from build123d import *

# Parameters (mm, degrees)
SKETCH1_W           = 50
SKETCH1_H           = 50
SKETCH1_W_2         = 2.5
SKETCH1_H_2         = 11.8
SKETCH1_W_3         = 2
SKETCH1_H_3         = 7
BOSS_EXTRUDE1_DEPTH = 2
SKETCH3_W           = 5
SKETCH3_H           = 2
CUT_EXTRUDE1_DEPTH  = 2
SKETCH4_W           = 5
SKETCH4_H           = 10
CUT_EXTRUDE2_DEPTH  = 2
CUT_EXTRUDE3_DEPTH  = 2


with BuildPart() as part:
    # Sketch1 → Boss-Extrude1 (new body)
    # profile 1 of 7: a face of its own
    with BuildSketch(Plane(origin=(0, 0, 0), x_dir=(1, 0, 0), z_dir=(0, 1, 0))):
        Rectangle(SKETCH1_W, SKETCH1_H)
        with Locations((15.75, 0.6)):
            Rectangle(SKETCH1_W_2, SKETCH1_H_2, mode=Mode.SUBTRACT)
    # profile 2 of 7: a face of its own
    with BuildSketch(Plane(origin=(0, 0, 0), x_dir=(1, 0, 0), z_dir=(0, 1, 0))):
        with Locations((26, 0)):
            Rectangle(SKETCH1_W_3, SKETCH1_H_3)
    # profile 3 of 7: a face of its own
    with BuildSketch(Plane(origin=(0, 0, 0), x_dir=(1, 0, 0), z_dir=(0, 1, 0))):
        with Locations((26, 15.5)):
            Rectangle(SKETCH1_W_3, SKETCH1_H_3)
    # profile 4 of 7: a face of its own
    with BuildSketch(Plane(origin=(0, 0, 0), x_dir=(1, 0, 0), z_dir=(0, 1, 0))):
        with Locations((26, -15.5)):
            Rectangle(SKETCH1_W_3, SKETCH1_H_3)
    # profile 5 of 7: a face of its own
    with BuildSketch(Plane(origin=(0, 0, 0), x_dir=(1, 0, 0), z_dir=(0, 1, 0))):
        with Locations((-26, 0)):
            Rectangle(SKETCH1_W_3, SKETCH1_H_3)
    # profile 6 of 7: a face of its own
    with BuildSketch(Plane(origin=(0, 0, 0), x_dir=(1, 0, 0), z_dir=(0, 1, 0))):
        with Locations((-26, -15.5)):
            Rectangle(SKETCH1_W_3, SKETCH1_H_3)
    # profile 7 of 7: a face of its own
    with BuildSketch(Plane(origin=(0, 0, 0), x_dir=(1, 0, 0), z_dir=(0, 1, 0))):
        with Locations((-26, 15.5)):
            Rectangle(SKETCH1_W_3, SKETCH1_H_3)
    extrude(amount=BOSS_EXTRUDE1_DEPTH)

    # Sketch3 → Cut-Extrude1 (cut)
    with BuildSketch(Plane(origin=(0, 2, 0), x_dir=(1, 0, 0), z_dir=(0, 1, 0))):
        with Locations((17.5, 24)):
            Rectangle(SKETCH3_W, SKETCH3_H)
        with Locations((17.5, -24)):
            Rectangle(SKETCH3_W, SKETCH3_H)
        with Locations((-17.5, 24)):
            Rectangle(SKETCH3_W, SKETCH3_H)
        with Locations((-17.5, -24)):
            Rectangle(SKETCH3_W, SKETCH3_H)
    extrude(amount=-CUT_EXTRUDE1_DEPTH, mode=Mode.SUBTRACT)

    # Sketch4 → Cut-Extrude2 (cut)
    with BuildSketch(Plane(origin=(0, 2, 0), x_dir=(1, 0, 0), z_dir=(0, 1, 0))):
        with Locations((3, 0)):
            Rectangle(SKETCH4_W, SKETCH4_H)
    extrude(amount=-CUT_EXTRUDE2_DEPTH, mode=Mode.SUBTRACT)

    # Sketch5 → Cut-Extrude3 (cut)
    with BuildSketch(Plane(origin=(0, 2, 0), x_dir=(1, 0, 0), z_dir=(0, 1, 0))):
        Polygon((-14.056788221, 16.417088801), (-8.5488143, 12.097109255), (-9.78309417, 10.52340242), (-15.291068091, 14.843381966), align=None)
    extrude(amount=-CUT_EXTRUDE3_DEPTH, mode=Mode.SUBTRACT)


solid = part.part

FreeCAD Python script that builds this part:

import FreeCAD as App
import Part
import Sketcher
from FreeCAD import Vector


def add_polygon(sketch, points):
    """Adds a closed chain of lines whose ends are joined by coincident constraints."""
    first, n = sketch.GeometryCount, len(points)
    for a, b in zip(points, points[1:] + points[:1]):
        sketch.addGeometry(Part.LineSegment(App.Vector(*a, 0), App.Vector(*b, 0)), False)
    for i in range(n):
        sketch.addConstraint(Sketcher.Constraint("Coincident", first + i, 2, first + (i + 1) % n, 1))

doc = App.newDocument("Part")
body = doc.addObject("PartDesign::Body", "Body")

sketch1 = body.newObject("Sketcher::SketchObject", "Sketch")
sketch1.AttachmentSupport = (doc.getObject("XZ_Plane"), [""])
sketch1.MapMode = "FlatFace"
add_polygon(sketch1, [(-25, 19), (-25, 25), (25, 25), (25, 19), (27, 19), (27, 12), (25, 12), (25, 3.5), (27, 3.5), (27, -3.5), (25, -3.5), (25, -12), (27, -12), (27, -19), (25, -19), (25, -25), (-25, -25), (-25, -19), (-27, -19), (-27, -12), (-25, -12), (-25, -3.5), (-27, -3.5), (-27, 3.5), (-25, 3.5), (-25, 12), (-27, 12), (-27, 19)])
add_polygon(sketch1, [(17, 5.3), (14.5, 5.3), (14.5, -6.5), (17, -6.5)])
sketch1.addConstraint([
    Sketcher.Constraint("Vertical", 0),
    Sketcher.Constraint("Horizontal", 1),
    Sketcher.Constraint("Vertical", 2),
    Sketcher.Constraint("Horizontal", 3),
    Sketcher.Constraint("Vertical", 4),
    Sketcher.Constraint("Horizontal", 5),
    Sketcher.Constraint("Vertical", 6),
    Sketcher.Constraint("Horizontal", 7),
    Sketcher.Constraint("Vertical", 8),
    Sketcher.Constraint("Horizontal", 9),
    Sketcher.Constraint("Vertical", 10),
    Sketcher.Constraint("Horizontal", 11),
    Sketcher.Constraint("Vertical", 12),
    Sketcher.Constraint("Horizontal", 13),
    Sketcher.Constraint("Vertical", 14),
    Sketcher.Constraint("Horizontal", 15),
    Sketcher.Constraint("Vertical", 16),
    Sketcher.Constraint("Horizontal", 17),
    Sketcher.Constraint("Vertical", 18),
    Sketcher.Constraint("Horizontal", 19),
    Sketcher.Constraint("Vertical", 20),
    Sketcher.Constraint("Horizontal", 21),
    Sketcher.Constraint("Vertical", 22),
    Sketcher.Constraint("Horizontal", 23),
    Sketcher.Constraint("Vertical", 24),
    Sketcher.Constraint("Horizontal", 25),
    Sketcher.Constraint("Vertical", 26),
    Sketcher.Constraint("Horizontal", 27),
    Sketcher.Constraint("Horizontal", 28),
    Sketcher.Constraint("Vertical", 29),
    Sketcher.Constraint("Horizontal", 30),
    Sketcher.Constraint("Vertical", 31),
    Sketcher.Constraint("Symmetric", 0, 2, 14, 2, -1, 1),
    Sketcher.Constraint("Symmetric", 2, 2, 16, 2, -1, 1),
    Sketcher.Constraint("Symmetric", 4, 2, 18, 2, -1, 1),
    Sketcher.Constraint("Symmetric", 6, 2, 20, 2, -1, 1),
    Sketcher.Constraint("Symmetric", 8, 2, 22, 2, -1, 1),
    Sketcher.Constraint("Symmetric", 10, 2, 24, 2, -1, 1),
    Sketcher.Constraint("Symmetric", 12, 2, 26, 2, -1, 1),
    Sketcher.Constraint("Symmetric", 13, 2, 16, 2, -2),
    Sketcher.Constraint("Symmetric", 11, 2, 18, 2, -2),
    Sketcher.Constraint("Symmetric", 9, 2, 20, 2, -2),
    Sketcher.Constraint("Vertical", 2, 2, 5, 2),
    Sketcher.Constraint("Vertical", 4, 2, 7, 2),
    Sketcher.Constraint("Equal", 4, 8),
    Sketcher.Constraint("DistanceX", 1, 1, 1, 2, 50.0),
    Sketcher.Constraint("DistanceX", 3, 1, 3, 2, 2.0),
    Sketcher.Constraint("DistanceY", 0, 1, 0, 2, 6.0),
    Sketcher.Constraint("DistanceY", 4, 2, 4, 1, 7.0),
    Sketcher.Constraint("DistanceX", 28, 2, 28, 1, 2.5),
    Sketcher.Constraint("DistanceY", 6, 2, 6, 1, 8.5),
    Sketcher.Constraint("DistanceY", 29, 2, 29, 1, 11.8),
    Sketcher.Constraint("DistanceX", -1, 1, 30, 2, 17.0),
    Sketcher.Constraint("DistanceY", 29, 2, 9, 2, 3.0),
])
pad1 = body.newObject("PartDesign::Pad", "Pad")
pad1.Profile = sketch1
pad1.Length = 2
pad1.Reversed = True

sketch2 = body.newObject("Sketcher::SketchObject", "Sketch001")
sketch2.AttachmentSupport = (doc.getObject("XZ_Plane"), [""])
sketch2.MapMode = "FlatFace"
sketch2.AttachmentOffset = App.Placement(Vector(0, 0, -2), App.Rotation())
add_polygon(sketch2, [(15, -25), (15, -23), (20, -23), (20, -25)])
add_polygon(sketch2, [(15, 23), (15, 25), (20, 25), (20, 23)])
add_polygon(sketch2, [(-20, -25), (-20, -23), (-15, -23), (-15, -25)])
add_polygon(sketch2, [(-20, 23), (-20, 25), (-15, 25), (-15, 23)])
sketch2.addConstraint([
    Sketcher.Constraint("Vertical", 0),
    Sketcher.Constraint("Horizontal", 1),
    Sketcher.Constraint("Vertical", 2),
    Sketcher.Constraint("Horizontal", 3),
    Sketcher.Constraint("Vertical", 4),
    Sketcher.Constraint("Horizontal", 5),
    Sketcher.Constraint("Vertical", 6),
    Sketcher.Constraint("Horizontal", 7),
    Sketcher.Constraint("Vertical", 8),
    Sketcher.Constraint("Horizontal", 9),
    Sketcher.Constraint("Vertical", 10),
    Sketcher.Constraint("Horizontal", 11),
    Sketcher.Constraint("Vertical", 12),
    Sketcher.Constraint("Horizontal", 13),
    Sketcher.Constraint("Vertical", 14),
    Sketcher.Constraint("Horizontal", 15),
    Sketcher.Constraint("Symmetric", 6, 2, 8, 2, -1, 1),
    Sketcher.Constraint("Symmetric", 4, 2, 10, 2, -1, 1),
    Sketcher.Constraint("Symmetric", 2, 2, 12, 2, -1, 1),
    Sketcher.Constraint("Symmetric", 0, 2, 14, 2, -1, 1),
    Sketcher.Constraint("Symmetric", 1, 2, 8, 2, -2),
    Sketcher.Constraint("Symmetric", 3, 2, 10, 2, -2),
    Sketcher.Constraint("DistanceX", 1, 1, 1, 2, 5.0),
    Sketcher.Constraint("DistanceY", 0, 1, 0, 2, 2.0),
    Sketcher.Constraint("DistanceX", -1, 1, 0, 2, 15.0),
    Sketcher.Constraint("DistanceY", 0, 2, -1, 1, 23.0),
])
pocket1 = body.newObject("PartDesign::Pocket", "Pocket")
pocket1.Profile = sketch2
pocket1.Length = 2
pocket1.Reversed = True

sketch3 = body.newObject("Sketcher::SketchObject", "Sketch002")
sketch3.AttachmentSupport = (doc.getObject("XZ_Plane"), [""])
sketch3.MapMode = "FlatFace"
sketch3.AttachmentOffset = App.Placement(Vector(0, 0, -2), App.Rotation())
add_polygon(sketch3, [(0, -5), (0, 5), (6, 5), (6, -5)])
sketch3.addConstraint([
    Sketcher.Constraint("Vertical", 0),
    Sketcher.Constraint("Horizontal", 1),
    Sketcher.Constraint("Vertical", 2),
    Sketcher.Constraint("Horizontal", 3),
    Sketcher.Constraint("DistanceX", 1, 1, 1, 2, 5.0),
    Sketcher.Constraint("DistanceY", 0, 1, 0, 2, 10.0),
    Sketcher.Constraint("DistanceY", -1, 1, 0, 2, 5.0),
    Sketcher.Constraint("DistanceX", -1, 1, 0, 2, 0.5),
])
pocket2 = body.newObject("PartDesign::Pocket", "Pocket001")
pocket2.Profile = sketch3
pocket2.Length = 2
pocket2.Reversed = True

sketch4 = body.newObject("Sketcher::SketchObject", "Sketch003")
sketch4.AttachmentSupport = (doc.getObject("XZ_Plane"), [""])
sketch4.MapMode = "FlatFace"
sketch4.AttachmentOffset = App.Placement(Vector(0, 0, -2), App.Rotation())
add_polygon(sketch4, [(-8.5, -12.1), (-14.1, -16.4), (-15.3, -14.8), (-9.8, -10.5)])
sketch4.addConstraint([
    Sketcher.Constraint("Perpendicular", 0, 1),
    Sketcher.Constraint("Perpendicular", 1, 2),
    Sketcher.Constraint("Perpendicular", 2, 3),
    Sketcher.Constraint("Distance", 0, 7.0),
    Sketcher.Constraint("Distance", 1, 2.0),
    Sketcher.Constraint("DistanceX", 0, 2, -1, 1, 14.056788),
    Sketcher.Constraint("DistanceY", 0, 2, -1, 1, 16.417089),
    Sketcher.Constraint("DistanceX", 1, 2, -1, 1, 15.291068),
])
pocket3 = body.newObject("PartDesign::Pocket", "Pocket002")
pocket3.Profile = sketch4
pocket3.Length = 2
pocket3.Reversed = True

doc.recompute()
